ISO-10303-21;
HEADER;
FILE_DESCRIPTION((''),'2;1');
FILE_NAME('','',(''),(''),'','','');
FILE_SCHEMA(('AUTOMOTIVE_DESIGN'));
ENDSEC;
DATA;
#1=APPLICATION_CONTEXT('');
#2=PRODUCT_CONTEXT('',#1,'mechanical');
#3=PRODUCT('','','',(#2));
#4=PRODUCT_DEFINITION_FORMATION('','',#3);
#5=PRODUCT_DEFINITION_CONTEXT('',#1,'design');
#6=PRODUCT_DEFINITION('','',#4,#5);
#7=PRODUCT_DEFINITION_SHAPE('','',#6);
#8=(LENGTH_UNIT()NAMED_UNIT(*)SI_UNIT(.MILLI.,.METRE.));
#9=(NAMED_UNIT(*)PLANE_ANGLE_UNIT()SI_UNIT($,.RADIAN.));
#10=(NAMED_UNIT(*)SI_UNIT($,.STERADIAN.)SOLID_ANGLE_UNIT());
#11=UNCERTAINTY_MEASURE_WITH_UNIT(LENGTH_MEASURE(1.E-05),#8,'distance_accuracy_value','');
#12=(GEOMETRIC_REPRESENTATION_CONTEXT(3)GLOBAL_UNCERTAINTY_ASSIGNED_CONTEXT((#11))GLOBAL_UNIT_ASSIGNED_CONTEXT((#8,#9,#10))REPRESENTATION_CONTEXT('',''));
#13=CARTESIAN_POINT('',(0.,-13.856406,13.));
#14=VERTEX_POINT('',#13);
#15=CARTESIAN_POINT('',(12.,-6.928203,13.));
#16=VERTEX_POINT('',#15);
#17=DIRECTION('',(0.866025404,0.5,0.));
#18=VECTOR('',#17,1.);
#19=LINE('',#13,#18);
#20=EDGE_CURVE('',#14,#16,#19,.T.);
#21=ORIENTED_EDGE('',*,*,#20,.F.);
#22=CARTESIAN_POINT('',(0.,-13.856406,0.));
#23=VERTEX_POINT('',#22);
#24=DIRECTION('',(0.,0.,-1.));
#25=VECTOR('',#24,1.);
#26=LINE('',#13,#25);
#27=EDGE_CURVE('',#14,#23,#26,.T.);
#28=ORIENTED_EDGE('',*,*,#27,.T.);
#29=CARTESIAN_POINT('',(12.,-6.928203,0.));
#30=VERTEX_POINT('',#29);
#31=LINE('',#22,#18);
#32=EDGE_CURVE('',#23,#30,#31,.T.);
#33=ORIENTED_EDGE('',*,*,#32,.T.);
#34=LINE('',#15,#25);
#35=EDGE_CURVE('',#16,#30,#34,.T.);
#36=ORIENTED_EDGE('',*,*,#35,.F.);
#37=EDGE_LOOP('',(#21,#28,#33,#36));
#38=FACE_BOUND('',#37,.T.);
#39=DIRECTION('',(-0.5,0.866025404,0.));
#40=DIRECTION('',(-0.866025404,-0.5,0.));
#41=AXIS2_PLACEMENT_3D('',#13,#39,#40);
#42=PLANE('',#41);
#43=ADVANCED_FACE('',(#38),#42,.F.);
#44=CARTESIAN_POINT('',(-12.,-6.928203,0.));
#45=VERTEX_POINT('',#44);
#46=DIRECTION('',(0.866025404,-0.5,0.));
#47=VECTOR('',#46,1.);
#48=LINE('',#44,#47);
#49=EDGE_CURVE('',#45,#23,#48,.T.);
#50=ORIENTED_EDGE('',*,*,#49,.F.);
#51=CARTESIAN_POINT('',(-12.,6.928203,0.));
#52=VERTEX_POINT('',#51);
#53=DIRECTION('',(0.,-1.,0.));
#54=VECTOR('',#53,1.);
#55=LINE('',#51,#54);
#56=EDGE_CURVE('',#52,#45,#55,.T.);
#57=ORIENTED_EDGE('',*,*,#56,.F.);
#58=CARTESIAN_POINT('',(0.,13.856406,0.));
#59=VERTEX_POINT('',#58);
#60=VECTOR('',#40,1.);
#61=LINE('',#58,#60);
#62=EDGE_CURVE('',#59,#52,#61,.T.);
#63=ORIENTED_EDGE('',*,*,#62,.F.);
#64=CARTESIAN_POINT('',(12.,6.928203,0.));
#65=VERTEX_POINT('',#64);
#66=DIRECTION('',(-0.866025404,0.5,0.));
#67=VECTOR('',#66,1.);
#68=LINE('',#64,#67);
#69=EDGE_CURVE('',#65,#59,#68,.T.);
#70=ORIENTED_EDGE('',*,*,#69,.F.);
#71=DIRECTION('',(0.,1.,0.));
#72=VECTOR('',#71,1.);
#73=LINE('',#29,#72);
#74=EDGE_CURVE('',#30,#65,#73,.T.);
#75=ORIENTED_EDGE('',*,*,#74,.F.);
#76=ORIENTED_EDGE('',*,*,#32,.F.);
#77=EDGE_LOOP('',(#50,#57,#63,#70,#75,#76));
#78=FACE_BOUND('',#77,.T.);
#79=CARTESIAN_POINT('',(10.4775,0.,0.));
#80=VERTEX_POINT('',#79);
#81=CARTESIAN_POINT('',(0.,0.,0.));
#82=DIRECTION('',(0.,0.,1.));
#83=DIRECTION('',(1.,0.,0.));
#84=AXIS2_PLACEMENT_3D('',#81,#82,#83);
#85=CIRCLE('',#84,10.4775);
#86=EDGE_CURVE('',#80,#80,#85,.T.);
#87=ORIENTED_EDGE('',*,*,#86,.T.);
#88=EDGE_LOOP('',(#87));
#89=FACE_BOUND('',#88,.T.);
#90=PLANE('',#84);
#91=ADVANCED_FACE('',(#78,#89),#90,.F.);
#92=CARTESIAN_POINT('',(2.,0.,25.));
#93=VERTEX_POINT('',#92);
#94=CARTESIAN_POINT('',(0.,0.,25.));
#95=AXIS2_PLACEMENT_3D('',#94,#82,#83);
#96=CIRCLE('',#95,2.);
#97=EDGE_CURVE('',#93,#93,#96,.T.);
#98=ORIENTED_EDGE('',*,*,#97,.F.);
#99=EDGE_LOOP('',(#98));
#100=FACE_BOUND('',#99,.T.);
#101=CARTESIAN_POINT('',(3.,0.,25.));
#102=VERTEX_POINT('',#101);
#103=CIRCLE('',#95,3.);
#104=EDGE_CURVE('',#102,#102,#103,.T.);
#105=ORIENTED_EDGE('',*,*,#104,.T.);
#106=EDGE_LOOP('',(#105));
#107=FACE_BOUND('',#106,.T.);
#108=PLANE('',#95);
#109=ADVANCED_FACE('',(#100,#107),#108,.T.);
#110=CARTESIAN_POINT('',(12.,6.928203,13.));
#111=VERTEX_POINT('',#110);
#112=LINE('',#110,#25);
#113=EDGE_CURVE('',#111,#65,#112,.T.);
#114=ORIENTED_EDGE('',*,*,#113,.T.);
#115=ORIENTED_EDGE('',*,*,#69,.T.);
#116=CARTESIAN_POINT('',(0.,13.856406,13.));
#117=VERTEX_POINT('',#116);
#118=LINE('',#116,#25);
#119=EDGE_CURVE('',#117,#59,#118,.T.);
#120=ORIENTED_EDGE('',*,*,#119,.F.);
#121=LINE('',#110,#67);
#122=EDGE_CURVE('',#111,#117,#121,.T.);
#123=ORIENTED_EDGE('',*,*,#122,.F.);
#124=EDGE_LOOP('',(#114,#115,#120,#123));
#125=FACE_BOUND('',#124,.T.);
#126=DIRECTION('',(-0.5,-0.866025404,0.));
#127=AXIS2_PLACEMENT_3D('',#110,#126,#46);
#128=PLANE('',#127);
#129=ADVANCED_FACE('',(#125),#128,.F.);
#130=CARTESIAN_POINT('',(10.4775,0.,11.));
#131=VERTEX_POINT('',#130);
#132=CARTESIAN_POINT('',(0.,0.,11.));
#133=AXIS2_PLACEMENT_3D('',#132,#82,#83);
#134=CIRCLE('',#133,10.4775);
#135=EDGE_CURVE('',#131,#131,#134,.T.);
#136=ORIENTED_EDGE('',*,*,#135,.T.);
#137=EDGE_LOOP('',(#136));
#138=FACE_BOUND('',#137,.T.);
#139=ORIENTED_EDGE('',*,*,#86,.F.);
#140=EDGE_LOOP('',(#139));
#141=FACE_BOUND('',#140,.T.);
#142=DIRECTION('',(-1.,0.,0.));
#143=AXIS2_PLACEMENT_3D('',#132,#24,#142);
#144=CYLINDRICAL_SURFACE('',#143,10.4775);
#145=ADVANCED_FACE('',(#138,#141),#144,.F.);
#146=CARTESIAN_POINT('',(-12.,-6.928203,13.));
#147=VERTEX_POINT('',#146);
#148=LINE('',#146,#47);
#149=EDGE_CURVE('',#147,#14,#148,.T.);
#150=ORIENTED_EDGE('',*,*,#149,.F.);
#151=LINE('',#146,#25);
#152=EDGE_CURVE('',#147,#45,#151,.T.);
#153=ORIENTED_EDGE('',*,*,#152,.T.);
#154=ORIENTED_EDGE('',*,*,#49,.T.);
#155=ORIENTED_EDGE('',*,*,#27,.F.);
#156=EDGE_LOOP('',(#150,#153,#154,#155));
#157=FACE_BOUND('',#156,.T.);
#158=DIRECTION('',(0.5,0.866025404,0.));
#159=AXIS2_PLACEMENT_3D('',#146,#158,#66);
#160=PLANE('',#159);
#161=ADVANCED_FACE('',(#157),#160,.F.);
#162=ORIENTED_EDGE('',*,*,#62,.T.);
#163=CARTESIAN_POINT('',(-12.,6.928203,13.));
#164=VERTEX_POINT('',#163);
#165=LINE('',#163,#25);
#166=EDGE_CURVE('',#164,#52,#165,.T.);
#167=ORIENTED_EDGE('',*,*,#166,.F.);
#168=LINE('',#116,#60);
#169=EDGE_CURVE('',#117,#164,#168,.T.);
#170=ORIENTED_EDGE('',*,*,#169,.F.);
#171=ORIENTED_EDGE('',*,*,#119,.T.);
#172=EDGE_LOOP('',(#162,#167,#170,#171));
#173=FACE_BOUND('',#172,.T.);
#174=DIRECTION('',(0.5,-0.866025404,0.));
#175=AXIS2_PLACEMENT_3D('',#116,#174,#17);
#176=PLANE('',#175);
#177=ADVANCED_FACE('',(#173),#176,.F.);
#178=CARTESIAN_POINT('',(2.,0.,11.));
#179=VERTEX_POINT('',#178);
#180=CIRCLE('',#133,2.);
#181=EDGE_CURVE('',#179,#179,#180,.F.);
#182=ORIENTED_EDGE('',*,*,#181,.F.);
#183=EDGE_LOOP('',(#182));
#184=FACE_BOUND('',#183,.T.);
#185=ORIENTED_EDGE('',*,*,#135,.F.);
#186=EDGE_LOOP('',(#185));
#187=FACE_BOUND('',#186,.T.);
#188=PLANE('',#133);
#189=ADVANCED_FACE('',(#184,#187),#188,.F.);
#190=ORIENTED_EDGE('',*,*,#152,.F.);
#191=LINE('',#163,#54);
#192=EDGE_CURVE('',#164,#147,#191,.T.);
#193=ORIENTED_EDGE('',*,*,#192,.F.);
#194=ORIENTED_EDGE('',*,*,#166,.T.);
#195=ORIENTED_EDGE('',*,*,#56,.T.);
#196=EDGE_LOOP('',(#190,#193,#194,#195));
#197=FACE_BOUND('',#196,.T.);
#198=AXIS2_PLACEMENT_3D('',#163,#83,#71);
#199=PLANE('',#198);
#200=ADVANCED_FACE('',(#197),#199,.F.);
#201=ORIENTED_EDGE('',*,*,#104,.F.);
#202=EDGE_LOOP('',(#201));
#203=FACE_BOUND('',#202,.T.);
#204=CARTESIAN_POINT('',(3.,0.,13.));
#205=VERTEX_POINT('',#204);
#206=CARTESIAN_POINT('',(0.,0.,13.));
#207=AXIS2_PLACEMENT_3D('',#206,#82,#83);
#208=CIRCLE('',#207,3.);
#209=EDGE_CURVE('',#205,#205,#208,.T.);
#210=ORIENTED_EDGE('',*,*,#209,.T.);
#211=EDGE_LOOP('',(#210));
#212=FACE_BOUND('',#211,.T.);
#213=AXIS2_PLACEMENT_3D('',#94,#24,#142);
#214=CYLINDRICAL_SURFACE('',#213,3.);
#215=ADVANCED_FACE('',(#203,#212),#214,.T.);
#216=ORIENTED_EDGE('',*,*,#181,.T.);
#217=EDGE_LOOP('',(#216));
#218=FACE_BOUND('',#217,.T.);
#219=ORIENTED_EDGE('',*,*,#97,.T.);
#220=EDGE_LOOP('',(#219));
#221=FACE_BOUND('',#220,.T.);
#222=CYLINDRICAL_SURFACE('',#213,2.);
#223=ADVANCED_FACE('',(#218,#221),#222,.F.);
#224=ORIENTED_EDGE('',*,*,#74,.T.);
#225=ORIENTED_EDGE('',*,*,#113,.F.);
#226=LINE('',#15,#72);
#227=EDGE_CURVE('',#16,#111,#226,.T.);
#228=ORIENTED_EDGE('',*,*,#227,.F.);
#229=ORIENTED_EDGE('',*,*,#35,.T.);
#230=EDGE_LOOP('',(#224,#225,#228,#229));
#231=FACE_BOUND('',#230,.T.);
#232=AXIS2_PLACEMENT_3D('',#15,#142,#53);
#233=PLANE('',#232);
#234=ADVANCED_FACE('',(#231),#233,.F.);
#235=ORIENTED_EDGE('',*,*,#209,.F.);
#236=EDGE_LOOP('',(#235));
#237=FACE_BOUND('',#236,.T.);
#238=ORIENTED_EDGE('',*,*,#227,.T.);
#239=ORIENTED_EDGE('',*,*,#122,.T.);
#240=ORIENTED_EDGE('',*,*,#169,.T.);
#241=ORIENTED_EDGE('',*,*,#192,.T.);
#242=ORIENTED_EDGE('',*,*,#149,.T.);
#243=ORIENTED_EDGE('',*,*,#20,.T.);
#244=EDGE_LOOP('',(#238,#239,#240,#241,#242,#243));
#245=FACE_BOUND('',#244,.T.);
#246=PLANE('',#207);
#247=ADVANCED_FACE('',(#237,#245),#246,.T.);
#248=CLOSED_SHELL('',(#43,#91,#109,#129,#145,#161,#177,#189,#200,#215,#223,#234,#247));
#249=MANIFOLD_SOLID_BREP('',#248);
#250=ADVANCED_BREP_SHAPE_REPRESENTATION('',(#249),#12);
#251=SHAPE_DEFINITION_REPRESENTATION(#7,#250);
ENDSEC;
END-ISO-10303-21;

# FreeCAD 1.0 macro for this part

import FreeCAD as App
import Part
import Sketcher
from FreeCAD import Vector
Q = App.Units.Quantity

doc = App.newDocument("Part")
body = doc.addObject("PartDesign::Body", "Body")

sketch1 = doc.addObject("Sketcher::SketchObject", "Sketch")
body.addObject(sketch1)
sketch1.AttachmentSupport = (doc.XY_Plane, [""])
sketch1.MapMode = "FlatFace"
sketch1.addGeometry(Part.LineSegment(Vector(12, 6.928203, 0), Vector(0, 13.856406, 0)), False)
sketch1.addGeometry(Part.LineSegment(Vector(0, 13.856406, 0), Vector(-12, 6.928203, 0)), False)
sketch1.addGeometry(Part.LineSegment(Vector(-12, 6.928203, 0), Vector(-12, -6.928203, 0)), False)
sketch1.addGeometry(Part.LineSegment(Vector(-12, -6.928203, 0), Vector(0, -13.856406, 0)), False)
sketch1.addGeometry(Part.LineSegment(Vector(0, -13.856406, 0), Vector(12, -6.928203, 0)), False)
sketch1.addGeometry(Part.LineSegment(Vector(12, -6.928203, 0), Vector(12, 6.928203, 0)), False)
sketch1.addConstraint(Sketcher.Constraint("Coincident", 0, 2, 1, 1))
sketch1.addConstraint(Sketcher.Constraint("Coincident", 1, 2, 2, 1))
sketch1.addConstraint(Sketcher.Constraint("Coincident", 2, 2, 3, 1))
sketch1.addConstraint(Sketcher.Constraint("Coincident", 3, 2, 4, 1))
sketch1.addConstraint(Sketcher.Constraint("Coincident", 4, 2, 5, 1))
sketch1.addConstraint(Sketcher.Constraint("Coincident", 5, 2, 0, 1))
sketch1.addConstraint(Sketcher.Constraint("Vertical", 2))
sketch1.addConstraint(Sketcher.Constraint("Vertical", 5))
sketch1.addConstraint(Sketcher.Constraint("Symmetric", 0, 2, 3, 2, -1, 1))
sketch1.addConstraint(Sketcher.Constraint("Symmetric", 1, 2, 4, 2, -1, 1))
sketch1.addConstraint(Sketcher.Constraint("PointOnObject", 0, 2, -2))
sketch1.addConstraint(Sketcher.Constraint("Parallel", 0, 3))
sketch1.addConstraint(Sketcher.Constraint("Horizontal", 2, 2, 4, 2))
sketch1.addConstraint(Sketcher.Constraint("Angle", 0, Q("150 deg")))
sketch1.addConstraint(Sketcher.Constraint("DistanceX", 1, 2, -1, 1, Q("12 mm")))
sketch1.addConstraint(Sketcher.Constraint("DistanceY", 2, 2, 2, 1, Q("13.856406 mm")))
pad1 = doc.addObject("PartDesign::Pad", "Pad")
body.addObject(pad1)
pad1.Profile = sketch1
pad1.Length = 13

sketch2 = doc.addObject("Sketcher::SketchObject", "Sketch001")
body.addObject(sketch2)
sketch2.AttachmentSupport = (doc.XY_Plane, [""])
sketch2.MapMode = "FlatFace"
sketch2.addGeometry(Part.Circle(Vector(0, 0, 0), Vector(0, 0, 1), 10.4775), False)
sketch2.addConstraint(Sketcher.Constraint("Coincident", 0, 3, -1, 1))
sketch2.addConstraint(Sketcher.Constraint("Diameter", 0, Q("20.955 mm")))
pocket1 = doc.addObject("PartDesign::Pocket", "Pocket")
body.addObject(pocket1)
pocket1.Profile = sketch2
pocket1.Length = 11
pocket1.Reversed = True

sketch3 = doc.addObject("Sketcher::SketchObject", "Sketch002")
body.addObject(sketch3)
sketch3.AttachmentSupport = (doc.XY_Plane, [""])
sketch3.MapMode = "FlatFace"
sketch3.AttachmentOffset = App.Placement(Vector(0, 0, 13), App.Rotation())
sketch3.addGeometry(Part.Circle(Vector(0, 0, 0), Vector(0, 0, 1), 3), False)
sketch3.addConstraint(Sketcher.Constraint("Coincident", 0, 3, -1, 1))
sketch3.addConstraint(Sketcher.Constraint("Diameter", 0, Q("6 mm")))
pad2 = doc.addObject("PartDesign::Pad", "Pad001")
body.addObject(pad2)
pad2.Profile = sketch3
pad2.Length = 12

sketch4 = doc.addObject("Sketcher::SketchObject", "Sketch003")
body.addObject(sketch4)
sketch4.AttachmentSupport = (doc.XY_Plane, [""])
sketch4.MapMode = "FlatFace"
sketch4.addGeometry(Part.Circle(Vector(0, 0, 0), Vector(0, 0, 1), 2), False)
sketch4.addConstraint(Sketcher.Constraint("Coincident", 0, 3, -1, 1))
sketch4.addConstraint(Sketcher.Constraint("Diameter", 0, Q("4 mm")))
pocket2 = doc.addObject("PartDesign::Pocket", "Pocket001")
body.addObject(pocket2)
pocket2.Profile = sketch4
pocket2.Type = "ThroughAll"
pocket2.Reversed = True

doc.recompute()
